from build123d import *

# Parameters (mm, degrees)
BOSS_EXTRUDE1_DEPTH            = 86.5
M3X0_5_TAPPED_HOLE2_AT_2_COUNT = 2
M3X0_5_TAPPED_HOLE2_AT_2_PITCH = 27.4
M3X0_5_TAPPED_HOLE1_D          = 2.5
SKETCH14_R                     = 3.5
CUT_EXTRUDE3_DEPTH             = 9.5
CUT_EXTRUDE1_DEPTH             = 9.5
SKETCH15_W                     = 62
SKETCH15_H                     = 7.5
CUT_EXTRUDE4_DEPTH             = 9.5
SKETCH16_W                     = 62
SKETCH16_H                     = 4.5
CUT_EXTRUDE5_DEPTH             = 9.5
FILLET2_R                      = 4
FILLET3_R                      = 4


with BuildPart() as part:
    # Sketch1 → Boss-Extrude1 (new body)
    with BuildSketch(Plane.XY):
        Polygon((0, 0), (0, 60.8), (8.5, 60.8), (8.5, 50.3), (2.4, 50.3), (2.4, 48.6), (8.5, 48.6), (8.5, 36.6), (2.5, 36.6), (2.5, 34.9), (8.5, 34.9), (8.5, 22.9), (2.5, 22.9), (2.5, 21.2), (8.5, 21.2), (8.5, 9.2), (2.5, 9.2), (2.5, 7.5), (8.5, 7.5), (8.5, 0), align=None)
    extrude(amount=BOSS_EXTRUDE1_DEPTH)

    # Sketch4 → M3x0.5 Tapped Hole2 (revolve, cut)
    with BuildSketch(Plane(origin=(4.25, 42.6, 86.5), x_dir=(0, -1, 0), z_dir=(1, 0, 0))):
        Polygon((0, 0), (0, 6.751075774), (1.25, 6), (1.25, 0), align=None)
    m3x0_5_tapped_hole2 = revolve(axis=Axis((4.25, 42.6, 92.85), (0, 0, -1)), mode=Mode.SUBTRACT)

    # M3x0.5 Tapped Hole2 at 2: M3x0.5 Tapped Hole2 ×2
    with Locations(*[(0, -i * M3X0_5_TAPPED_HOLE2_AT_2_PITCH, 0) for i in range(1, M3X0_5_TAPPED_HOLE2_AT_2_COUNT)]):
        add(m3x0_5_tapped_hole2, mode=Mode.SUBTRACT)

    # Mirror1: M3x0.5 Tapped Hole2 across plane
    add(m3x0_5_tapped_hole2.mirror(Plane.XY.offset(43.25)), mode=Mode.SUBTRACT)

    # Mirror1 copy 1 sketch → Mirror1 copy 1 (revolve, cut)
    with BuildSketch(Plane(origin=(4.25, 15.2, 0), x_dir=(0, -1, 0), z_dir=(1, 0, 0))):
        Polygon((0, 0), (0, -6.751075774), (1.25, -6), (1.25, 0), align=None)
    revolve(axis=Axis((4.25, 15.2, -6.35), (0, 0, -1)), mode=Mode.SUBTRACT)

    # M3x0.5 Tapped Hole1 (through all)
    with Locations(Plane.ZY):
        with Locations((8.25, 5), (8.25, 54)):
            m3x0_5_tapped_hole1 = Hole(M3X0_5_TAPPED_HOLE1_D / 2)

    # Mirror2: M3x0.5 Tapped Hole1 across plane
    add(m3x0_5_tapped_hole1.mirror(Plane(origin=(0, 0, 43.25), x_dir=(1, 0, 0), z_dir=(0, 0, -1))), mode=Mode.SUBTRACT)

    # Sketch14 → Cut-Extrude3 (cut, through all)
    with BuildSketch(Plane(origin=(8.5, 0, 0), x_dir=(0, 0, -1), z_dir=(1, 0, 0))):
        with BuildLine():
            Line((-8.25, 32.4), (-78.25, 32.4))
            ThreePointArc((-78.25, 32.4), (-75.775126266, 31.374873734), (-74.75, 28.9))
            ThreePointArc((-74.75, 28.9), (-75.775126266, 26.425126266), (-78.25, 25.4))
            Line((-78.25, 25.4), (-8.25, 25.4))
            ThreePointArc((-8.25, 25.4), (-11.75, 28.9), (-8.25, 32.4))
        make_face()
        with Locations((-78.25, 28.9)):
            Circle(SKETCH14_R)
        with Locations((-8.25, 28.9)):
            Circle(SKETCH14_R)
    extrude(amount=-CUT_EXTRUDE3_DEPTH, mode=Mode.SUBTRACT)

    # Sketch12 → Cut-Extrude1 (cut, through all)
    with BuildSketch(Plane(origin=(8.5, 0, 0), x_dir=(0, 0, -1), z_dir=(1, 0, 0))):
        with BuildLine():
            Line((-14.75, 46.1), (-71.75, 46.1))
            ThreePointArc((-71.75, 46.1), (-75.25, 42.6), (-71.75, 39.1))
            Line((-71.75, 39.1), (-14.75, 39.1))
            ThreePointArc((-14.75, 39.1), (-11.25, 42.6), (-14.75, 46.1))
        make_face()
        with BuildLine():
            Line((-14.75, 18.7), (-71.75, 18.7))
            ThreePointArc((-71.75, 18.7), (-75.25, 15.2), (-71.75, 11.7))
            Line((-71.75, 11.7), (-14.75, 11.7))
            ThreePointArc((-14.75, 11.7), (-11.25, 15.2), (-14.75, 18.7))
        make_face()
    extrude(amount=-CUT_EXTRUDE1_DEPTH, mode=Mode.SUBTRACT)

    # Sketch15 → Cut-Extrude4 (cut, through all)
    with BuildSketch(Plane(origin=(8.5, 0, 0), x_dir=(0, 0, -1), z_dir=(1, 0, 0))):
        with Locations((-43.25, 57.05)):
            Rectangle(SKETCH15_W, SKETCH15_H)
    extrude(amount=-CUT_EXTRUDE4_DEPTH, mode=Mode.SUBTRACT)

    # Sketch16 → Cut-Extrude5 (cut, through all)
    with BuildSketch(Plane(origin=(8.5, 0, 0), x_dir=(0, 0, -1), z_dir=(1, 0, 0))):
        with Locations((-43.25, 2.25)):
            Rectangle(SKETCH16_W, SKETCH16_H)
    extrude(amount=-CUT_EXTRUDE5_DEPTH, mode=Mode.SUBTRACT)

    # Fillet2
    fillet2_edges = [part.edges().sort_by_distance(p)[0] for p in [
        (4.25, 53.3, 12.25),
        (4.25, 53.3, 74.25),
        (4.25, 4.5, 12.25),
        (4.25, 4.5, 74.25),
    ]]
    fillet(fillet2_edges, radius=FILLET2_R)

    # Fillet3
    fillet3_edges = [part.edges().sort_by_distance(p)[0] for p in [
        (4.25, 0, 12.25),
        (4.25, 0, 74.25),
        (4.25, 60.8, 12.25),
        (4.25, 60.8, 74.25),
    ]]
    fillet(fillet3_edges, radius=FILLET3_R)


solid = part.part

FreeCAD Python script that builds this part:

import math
import FreeCAD as App
import Part
import Sketcher
from FreeCAD import Vector
Q = App.Units.Quantity


def edges_at(feature, points):
    """Names of the edges that pass closest to the given points."""
    edges = feature.Shape.Edges
    near = lambda p: min(range(len(edges)), key=lambda i: edges[i].distToShape(Part.Vertex(*p))[0])
    return sorted({f"Edge{near(p) + 1}" for p in points})

doc = App.newDocument("Part")
body = doc.addObject("PartDesign::Body", "Body")

# Sketch on XY plane
sketch1 = body.newObject("Sketcher::SketchObject", "Sketch")
sketch1.AttachmentSupport = (doc.getObject("XY_Plane"), [""])
sketch1.MapMode = "FlatFace"
sketch1.addGeometry(Part.LineSegment(Vector(0, 60.8, 0), Vector(0, 0, 0)), False)
sketch1.addGeometry(Part.LineSegment(Vector(0, 0, 0), Vector(8.5, 0, 0)), False)
sketch1.addGeometry(Part.LineSegment(Vector(8.5, 0, 0), Vector(8.5, 7.5, 0)), False)
sketch1.addGeometry(Part.LineSegment(Vector(8.5, 7.5, 0), Vector(2.5, 7.5, 0)), False)
sketch1.addGeometry(Part.LineSegment(Vector(2.5, 7.5, 0), Vector(2.5, 9.2, 0)), False)
sketch1.addGeometry(Part.LineSegment(Vector(2.5, 9.2, 0), Vector(8.5, 9.2, 0)), False)
sketch1.addGeometry(Part.LineSegment(Vector(8.5, 9.2, 0), Vector(8.5, 21.2, 0)), False)
sketch1.addGeometry(Part.LineSegment(Vector(8.5, 21.2, 0), Vector(2.5, 21.2, 0)), False)
sketch1.addGeometry(Part.LineSegment(Vector(2.5, 21.2, 0), Vector(2.5, 22.9, 0)), False)
sketch1.addGeometry(Part.LineSegment(Vector(2.5, 22.9, 0), Vector(8.5, 22.9, 0)), False)
sketch1.addGeometry(Part.LineSegment(Vector(8.5, 22.9, 0), Vector(8.5, 34.9, 0)), False)
sketch1.addGeometry(Part.LineSegment(Vector(8.5, 34.9, 0), Vector(2.5, 34.9, 0)), False)
sketch1.addGeometry(Part.LineSegment(Vector(2.5, 34.9, 0), Vector(2.5, 36.6, 0)), False)
sketch1.addGeometry(Part.LineSegment(Vector(2.5, 36.6, 0), Vector(8.5, 36.6, 0)), False)
sketch1.addGeometry(Part.LineSegment(Vector(8.5, 36.6, 0), Vector(8.5, 48.6, 0)), False)
sketch1.addGeometry(Part.LineSegment(Vector(8.5, 48.6, 0), Vector(2.4, 48.6, 0)), False)
sketch1.addGeometry(Part.LineSegment(Vector(2.4, 48.6, 0), Vector(2.4, 50.3, 0)), False)
sketch1.addGeometry(Part.LineSegment(Vector(2.4, 50.3, 0), Vector(8.5, 50.3, 0)), False)
sketch1.addGeometry(Part.LineSegment(Vector(8.5, 50.3, 0), Vector(8.5, 60.8, 0)), False)
sketch1.addGeometry(Part.LineSegment(Vector(8.5, 60.8, 0), Vector(0, 60.8, 0)), False)
sketch1.addConstraint(Sketcher.Constraint("Coincident", 0, 2, 1, 1))
sketch1.addConstraint(Sketcher.Constraint("Coincident", 1, 2, 2, 1))
sketch1.addConstraint(Sketcher.Constraint("Coincident", 2, 2, 3, 1))
sketch1.addConstraint(Sketcher.Constraint("Coincident", 3, 2, 4, 1))
sketch1.addConstraint(Sketcher.Constraint("Coincident", 4, 2, 5, 1))
sketch1.addConstraint(Sketcher.Constraint("Coincident", 5, 2, 6, 1))
sketch1.addConstraint(Sketcher.Constraint("Coincident", 6, 2, 7, 1))
sketch1.addConstraint(Sketcher.Constraint("Coincident", 7, 2, 8, 1))
sketch1.addConstraint(Sketcher.Constraint("Coincident", 8, 2, 9, 1))
sketch1.addConstraint(Sketcher.Constraint("Coincident", 9, 2, 10, 1))
sketch1.addConstraint(Sketcher.Constraint("Coincident", 10, 2, 11, 1))
sketch1.addConstraint(Sketcher.Constraint("Coincident", 11, 2, 12, 1))
sketch1.addConstraint(Sketcher.Constraint("Coincident", 12, 2, 13, 1))
sketch1.addConstraint(Sketcher.Constraint("Coincident", 13, 2, 14, 1))
sketch1.addConstraint(Sketcher.Constraint("Coincident", 14, 2, 15, 1))
sketch1.addConstraint(Sketcher.Constraint("Coincident", 15, 2, 16, 1))
sketch1.addConstraint(Sketcher.Constraint("Coincident", 16, 2, 17, 1))
sketch1.addConstraint(Sketcher.Constraint("Coincident", 17, 2, 18, 1))
sketch1.addConstraint(Sketcher.Constraint("Coincident", 18, 2, 19, 1))
sketch1.addConstraint(Sketcher.Constraint("Coincident", 19, 2, 0, 1))
sketch1.addConstraint(Sketcher.Constraint("Vertical", 0))
sketch1.addConstraint(Sketcher.Constraint("Horizontal", 1))
sketch1.addConstraint(Sketcher.Constraint("Vertical", 2))
sketch1.addConstraint(Sketcher.Constraint("Horizontal", 3))
sketch1.addConstraint(Sketcher.Constraint("Vertical", 4))
sketch1.addConstraint(Sketcher.Constraint("Horizontal", 5))
sketch1.addConstraint(Sketcher.Constraint("Vertical", 6))
sketch1.addConstraint(Sketcher.Constraint("Horizontal", 7))
sketch1.addConstraint(Sketcher.Constraint("Vertical", 8))
sketch1.addConstraint(Sketcher.Constraint("Horizontal", 9))
sketch1.addConstraint(Sketcher.Constraint("Vertical", 10))
sketch1.addConstraint(Sketcher.Constraint("Horizontal", 11))
sketch1.addConstraint(Sketcher.Constraint("Vertical", 12))
sketch1.addConstraint(Sketcher.Constraint("Horizontal", 13))
sketch1.addConstraint(Sketcher.Constraint("Vertical", 14))
sketch1.addConstraint(Sketcher.Constraint("Horizontal", 15))
sketch1.addConstraint(Sketcher.Constraint("Vertical", 16))
sketch1.addConstraint(Sketcher.Constraint("Horizontal", 17))
sketch1.addConstraint(Sketcher.Constraint("Vertical", 18))
sketch1.addConstraint(Sketcher.Constraint("Horizontal", 19))
sketch1.addConstraint(Sketcher.Constraint("Coincident", 0, 2, -1, 1))
sketch1.addConstraint(Sketcher.Constraint("Vertical", 2, 2, 5, 2))
sketch1.addConstraint(Sketcher.Constraint("Vertical", 4, 2, 7, 2))
sketch1.addConstraint(Sketcher.Constraint("Vertical", 6, 2, 9, 2))
sketch1.addConstraint(Sketcher.Constraint("Vertical", 8, 2, 11, 2))
sketch1.addConstraint(Sketcher.Constraint("Vertical", 10, 2, 13, 2))
sketch1.addConstraint(Sketcher.Constraint("Vertical", 14, 2, 17, 2))
sketch1.addConstraint(Sketcher.Constraint("Equal", 4, 8))
sketch1.addConstraint(Sketcher.Constraint("Equal", 6, 10))
sketch1.addConstraint(Sketcher.Constraint("Equal", 8, 12))
sketch1.addConstraint(Sketcher.Constraint("Equal", 10, 14))
sketch1.addConstraint(Sketcher.Constraint("Equal", 12, 16))
sketch1.addConstraint(Sketcher.Constraint("DistanceX", 3, 2, 3, 1, Q("6 mm")))
sketch1.addConstraint(Sketcher.Constraint("DistanceY", 6, 1, 6, 2, Q("12 mm")))
sketch1.addConstraint(Sketcher.Constraint("DistanceX", 1, 1, 1, 2, Q("8.5 mm")))
sketch1.addConstraint(Sketcher.Constraint("DistanceX", 15, 2, 15, 1, Q("6.1 mm")))
sketch1.addConstraint(Sketcher.Constraint("DistanceY", 0, 2, 0, 1, Q("60.8 mm")))
sketch1.addConstraint(Sketcher.Constraint("DistanceY", 2, 1, 2, 2, Q("7.5 mm")))
sketch1.addConstraint(Sketcher.Constraint("DistanceY", 4, 1, 4, 2, Q("1.7 mm")))
pad1 = body.newObject("PartDesign::Pad", "Pad")
pad1.Profile = sketch1
pad1.Length = 86.5

# Sketch on YZ plane
sketch2 = body.newObject("Sketcher::SketchObject", "Sketch001")
sketch2.AttachmentSupport = (doc.getObject("YZ_Plane"), [""])
sketch2.MapMode = "FlatFace"
sketch2.AttachmentOffset = App.Placement(Vector(0, 0, 4.25), App.Rotation())
sketch2.addGeometry(Part.LineSegment(Vector(42.6, 79.748924, 0), Vector(42.6, 86.5, 0)), False)
sketch2.addGeometry(Part.LineSegment(Vector(42.6, 86.5, 0), Vector(41.35, 86.5, 0)), False)
sketch2.addGeometry(Part.LineSegment(Vector(41.35, 86.5, 0), Vector(41.35, 80.5, 0)), False)
sketch2.addGeometry(Part.LineSegment(Vector(41.35, 80.5, 0), Vector(42.6, 79.748924, 0)), False)
sketch2.addGeometry(Part.LineSegment(Vector(42.6, 86.5, 0), Vector(42.6, 79.748924, 0)), True)  # axis
sketch2.addConstraint(Sketcher.Constraint("Coincident", 0, 2, 1, 1))
sketch2.addConstraint(Sketcher.Constraint("Coincident", 1, 2, 2, 1))
sketch2.addConstraint(Sketcher.Constraint("Coincident", 2, 2, 3, 1))
sketch2.addConstraint(Sketcher.Constraint("Coincident", 3, 2, 0, 1))
sketch2.addConstraint(Sketcher.Constraint("Vertical", 0))
sketch2.addConstraint(Sketcher.Constraint("Horizontal", 1))
sketch2.addConstraint(Sketcher.Constraint("Vertical", 2))
sketch2.addConstraint(Sketcher.Constraint("Vertical", 4))
sketch2.addConstraint(Sketcher.Constraint("Coincident", 4, 1, 0, 2))
sketch2.addConstraint(Sketcher.Constraint("Equal", 0, 4))
sketch2.addConstraint(Sketcher.Constraint("DistanceY", 2, 2, 2, 1, Q("6 mm")))
sketch2.addConstraint(Sketcher.Constraint("Angle", 3, Q("-31 deg")))
sketch2.addConstraint(Sketcher.Constraint("DistanceX", 1, 2, 1, 1, Q("1.25 mm")))
sketch2.addConstraint(Sketcher.Constraint("DistanceX", -1, 1, 0, 2, Q("42.6 mm")))
sketch2.addConstraint(Sketcher.Constraint("DistanceY", -1, 1, 0, 2, Q("86.5 mm")))
groove = body.newObject("PartDesign::Groove", "Groove")
groove.Profile = sketch2
groove.ReferenceAxis = (sketch2, ["Axis0"])
groove.Angle = 360
doc.recompute()

linearpattern = body.newObject("PartDesign::LinearPattern", "LinearPattern")
linearpattern.Originals = [groove]
linearpattern.Direction = (doc.getObject("Y_Axis"), [""])
linearpattern.Mode = "offset"
linearpattern.Offset = 27.4
linearpattern.Occurrences = 2
linearpattern.Reversed = True
body.Tip = linearpattern
doc.recompute()

datumplane = body.newObject("PartDesign::Plane", "DatumPlane")
datumplane.AttachmentSupport = (doc.getObject("XY_Plane"), [""])
datumplane.MapMode = "FlatFace"
datumplane.AttachmentOffset = App.Placement(Vector(0, 0, 43.25), App.Rotation())
mirrored = body.newObject("PartDesign::Mirrored", "Mirrored")
mirrored.Originals = [groove]
mirrored.MirrorPlane = (datumplane, [""])
body.Tip = mirrored

# Sketch on YZ plane
sketch3 = body.newObject("Sketcher::SketchObject", "Sketch002")
sketch3.AttachmentSupport = (doc.getObject("YZ_Plane"), [""])
sketch3.MapMode = "FlatFace"
sketch3.AttachmentOffset = App.Placement(Vector(0, 0, 4.25), App.Rotation())
sketch3.addGeometry(Part.LineSegment(Vector(15.2, 0, 0), Vector(15.2, 6.751076, 0)), False)
sketch3.addGeometry(Part.LineSegment(Vector(15.2, 6.751076, 0), Vector(13.95, 6, 0)), False)
sketch3.addGeometry(Part.LineSegment(Vector(13.95, 6, 0), Vector(13.95, 0, 0)), False)
sketch3.addGeometry(Part.LineSegment(Vector(13.95, 0, 0), Vector(15.2, 0, 0)), False)
sketch3.addGeometry(Part.LineSegment(Vector(15.2, 6.751076, 0), Vector(15.2, 0, 0)), True)  # axis
sketch3.addConstraint(Sketcher.Constraint("Coincident", 0, 2, 1, 1))
sketch3.addConstraint(Sketcher.Constraint("Coincident", 1, 2, 2, 1))
sketch3.addConstraint(Sketcher.Constraint("Coincident", 2, 2, 3, 1))
sketch3.addConstraint(Sketcher.Constraint("Coincident", 3, 2, 0, 1))
sketch3.addConstraint(Sketcher.Constraint("Vertical", 0))
sketch3.addConstraint(Sketcher.Constraint("Vertical", 2))
sketch3.addConstraint(Sketcher.Constraint("Horizontal", 3))
sketch3.addConstraint(Sketcher.Constraint("Vertical", 4))
sketch3.addConstraint(Sketcher.Constraint("Coincident", 4, 1, 0, 2))
sketch3.addConstraint(Sketcher.Constraint("PointOnObject", 2, 2, -1))
sketch3.addConstraint(Sketcher.Constraint("PointOnObject", 4, 2, -1))
sketch3.addConstraint(Sketcher.Constraint("DistanceY", 2, 2, 2, 1, Q("6 mm")))
sketch3.addConstraint(Sketcher.Constraint("Angle", 1, Q("-149 deg")))
sketch3.addConstraint(Sketcher.Constraint("DistanceX", 3, 1, 3, 2, Q("1.25 mm")))
sketch3.addConstraint(Sketcher.Constraint("DistanceX", -1, 1, 0, 2, Q("15.2 mm")))
groove2 = body.newObject("PartDesign::Groove", "Groove001")
groove2.Profile = sketch3
groove2.ReferenceAxis = (sketch3, ["Axis0"])
groove2.Angle = 360

# Sketch on YZ plane
sketch4 = body.newObject("Sketcher::SketchObject", "Sketch003")
sketch4.AttachmentSupport = (doc.getObject("YZ_Plane"), [""])
sketch4.MapMode = "FlatFace"
sketch4.addGeometry(Part.Circle(Vector(5, 8.25, 0), Vector(0, 0, 1), 1.25), False)
sketch4.addGeometry(Part.Circle(Vector(54, 8.25, 0), Vector(0, 0, 1), 1.25), False)
sketch4.addConstraint(Sketcher.Constraint("Equal", 0, 1))
sketch4.addConstraint(Sketcher.Constraint("Horizontal", 0, 3, 1, 3))
sketch4.addConstraint(Sketcher.Constraint("Diameter", 0, Q("2.5 mm")))
sketch4.addConstraint(Sketcher.Constraint("DistanceX", -1, 1, 0, 3, Q("5 mm")))
sketch4.addConstraint(Sketcher.Constraint("DistanceX", -1, 1, 1, 3, Q("54 mm")))
sketch4.addConstraint(Sketcher.Constraint("DistanceY", -1, 1, 0, 3, Q("8.25 mm")))
doc.recompute()
hole = body.newObject("PartDesign::Hole", "Hole")
hole.Profile = sketch4
hole.ThreadType = "None"
hole.Diameter = 2.5
hole.DepthType = "ThroughAll"
hole.Reversed = True
doc.recompute()

datumplane2 = body.newObject("PartDesign::Plane", "DatumPlane001")
datumplane2.AttachmentSupport = (doc.getObject("XY_Plane"), [""])
datumplane2.MapMode = "FlatFace"
datumplane2.AttachmentOffset = App.Placement(Vector(0, 0, 43.25), App.Rotation())
mirrored2 = body.newObject("PartDesign::Mirrored", "Mirrored001")
mirrored2.Originals = [hole]
mirrored2.MirrorPlane = (datumplane2, [""])
body.Tip = mirrored2

# Sketch on YZ plane
sketch5 = body.newObject("Sketcher::SketchObject", "Sketch004")
sketch5.AttachmentSupport = (doc.getObject("YZ_Plane"), [""])
sketch5.MapMode = "FlatFace"
sketch5.AttachmentOffset = App.Placement(Vector(0, 0, 8.5), App.Rotation())
sketch5.addGeometry(Part.LineSegment(Vector(32.4, 8.25, 0), Vector(32.4, 78.25, 0)), False)
sketch5.addGeometry(Part.ArcOfCircle(Part.Circle(Vector(28.9, 78.25, 0), Vector(0, 0, 1), 3.5), math.radians(0), math.radians(180)), False)
sketch5.addGeometry(Part.LineSegment(Vector(25.4, 78.25, 0), Vector(25.4, 8.25, 0)), False)
sketch5.addGeometry(Part.ArcOfCircle(Part.Circle(Vector(28.9, 8.25, 0), Vector(0, 0, 1), 3.5), math.radians(180), math.radians(360)), False)
sketch5.addConstraint(Sketcher.Constraint("Tangent", 0, 2, 1, 1))
sketch5.addConstraint(Sketcher.Constraint("Tangent", 1, 2, 2, 1))
sketch5.addConstraint(Sketcher.Constraint("Tangent", 2, 2, 3, 1))
sketch5.addConstraint(Sketcher.Constraint("Tangent", 3, 2, 0, 1))
sketch5.addConstraint(Sketcher.Constraint("Vertical", 0))
sketch5.addConstraint(Sketcher.Constraint("Vertical", 2))
sketch5.addConstraint(Sketcher.Constraint("Radius", 1, Q("3.5 mm")))
sketch5.addConstraint(Sketcher.Constraint("DistanceY", 0, 1, 0, 2, Q("70 mm")))
sketch5.addConstraint(Sketcher.Constraint("DistanceX", -1, 1, 1, 3, Q("28.9 mm")))
sketch5.addConstraint(Sketcher.Constraint("DistanceY", -1, 1, 1, 3, Q("78.25 mm")))
pocket1 = body.newObject("PartDesign::Pocket", "Pocket")
pocket1.Profile = sketch5
pocket1.Type = "ThroughAll"

# Sketch on YZ plane
sketch6 = body.newObject("Sketcher::SketchObject", "Sketch005")
sketch6.AttachmentSupport = (doc.getObject("YZ_Plane"), [""])
sketch6.MapMode = "FlatFace"
sketch6.AttachmentOffset = App.Placement(Vector(0, 0, 8.5), App.Rotation())
sketch6.addGeometry(Part.LineSegment(Vector(46.1, 14.75, 0), Vector(46.1, 71.75, 0)), False)
sketch6.addGeometry(Part.ArcOfCircle(Part.Circle(Vector(42.6, 71.75, 0), Vector(0, 0, 1), 3.5), math.radians(0), math.radians(180)), False)
sketch6.addGeometry(Part.LineSegment(Vector(39.1, 71.75, 0), Vector(39.1, 14.75, 0)), False)
sketch6.addGeometry(Part.ArcOfCircle(Part.Circle(Vector(42.6, 14.75, 0), Vector(0, 0, 1), 3.5), math.radians(180), math.radians(360)), False)
sketch6.addGeometry(Part.LineSegment(Vector(18.7, 14.75, 0), Vector(18.7, 71.75, 0)), False)
sketch6.addGeometry(Part.ArcOfCircle(Part.Circle(Vector(15.2, 71.75, 0), Vector(0, 0, 1), 3.5), math.radians(0), math.radians(180)), False)
sketch6.addGeometry(Part.LineSegment(Vector(11.7, 71.75, 0), Vector(11.7, 14.75, 0)), False)
sketch6.addGeometry(Part.ArcOfCircle(Part.Circle(Vector(15.2, 14.75, 0), Vector(0, 0, 1), 3.5), math.radians(180), math.radians(360)), False)
sketch6.addConstraint(Sketcher.Constraint("Tangent", 0, 2, 1, 1))
sketch6.addConstraint(Sketcher.Constraint("Tangent", 1, 2, 2, 1))
sketch6.addConstraint(Sketcher.Constraint("Tangent", 2, 2, 3, 1))
sketch6.addConstraint(Sketcher.Constraint("Tangent", 3, 2, 0, 1))
sketch6.addConstraint(Sketcher.Constraint("Tangent", 4, 2, 5, 1))
sketch6.addConstraint(Sketcher.Constraint("Tangent", 5, 2, 6, 1))
sketch6.addConstraint(Sketcher.Constraint("Tangent", 6, 2, 7, 1))
sketch6.addConstraint(Sketcher.Constraint("Tangent", 7, 2, 4, 1))
sketch6.addConstraint(Sketcher.Constraint("Vertical", 0))
sketch6.addConstraint(Sketcher.Constraint("Vertical", 2))
sketch6.addConstraint(Sketcher.Constraint("Vertical", 4))
sketch6.addConstraint(Sketcher.Constraint("Vertical", 6))
sketch6.addConstraint(Sketcher.Constraint("Equal", 3, 5))
sketch6.addConstraint(Sketcher.Constraint("Horizontal", 1, 3, 5, 3))
sketch6.addConstraint(Sketcher.Constraint("Horizontal", 3, 3, 7, 3))
sketch6.addConstraint(Sketcher.Constraint("Radius", 1, Q("3.5 mm")))
sketch6.addConstraint(Sketcher.Constraint("DistanceY", 0, 1, 0, 2, Q("57 mm")))
sketch6.addConstraint(Sketcher.Constraint("DistanceX", -1, 1, 1, 3, Q("42.6 mm")))
sketch6.addConstraint(Sketcher.Constraint("DistanceX", -1, 1, 5, 3, Q("15.2 mm")))
sketch6.addConstraint(Sketcher.Constraint("DistanceY", -1, 1, 1, 3, Q("71.75 mm")))
pocket2 = body.newObject("PartDesign::Pocket", "Pocket001")
pocket2.Profile = sketch6
pocket2.Type = "ThroughAll"

# Sketch on YZ plane
sketch7 = body.newObject("Sketcher::SketchObject", "Sketch006")
sketch7.AttachmentSupport = (doc.getObject("YZ_Plane"), [""])
sketch7.MapMode = "FlatFace"
sketch7.AttachmentOffset = App.Placement(Vector(0, 0, 8.5), App.Rotation())
sketch7.addGeometry(Part.LineSegment(Vector(60.8, 74.25, 0), Vector(53.3, 74.25, 0)), False)
sketch7.addGeometry(Part.LineSegment(Vector(53.3, 74.25, 0), Vector(53.3, 12.25, 0)), False)
sketch7.addGeometry(Part.LineSegment(Vector(53.3, 12.25, 0), Vector(60.8, 12.25, 0)), False)
sketch7.addGeometry(Part.LineSegment(Vector(60.8, 12.25, 0), Vector(60.8, 74.25, 0)), False)
sketch7.addConstraint(Sketcher.Constraint("Coincident", 0, 2, 1, 1))
sketch7.addConstraint(Sketcher.Constraint("Coincident", 1, 2, 2, 1))
sketch7.addConstraint(Sketcher.Constraint("Coincident", 2, 2, 3, 1))
sketch7.addConstraint(Sketcher.Constraint("Coincident", 3, 2, 0, 1))
sketch7.addConstraint(Sketcher.Constraint("Horizontal", 0))
sketch7.addConstraint(Sketcher.Constraint("Vertical", 1))
sketch7.addConstraint(Sketcher.Constraint("Horizontal", 2))
sketch7.addConstraint(Sketcher.Constraint("Vertical", 3))
sketch7.addConstraint(Sketcher.Constraint("DistanceY", 1, 2, 1, 1, Q("62 mm")))
sketch7.addConstraint(Sketcher.Constraint("DistanceX", 0, 2, 0, 1, Q("7.5 mm")))
sketch7.addConstraint(Sketcher.Constraint("DistanceX", -1, 1, 0, 2, Q("53.3 mm")))
sketch7.addConstraint(Sketcher.Constraint("DistanceY", -1, 1, 0, 2, Q("74.25 mm")))
pocket3 = body.newObject("PartDesign::Pocket", "Pocket002")
pocket3.Profile = sketch7
pocket3.Type = "ThroughAll"

# Sketch on YZ plane
sketch8 = body.newObject("Sketcher::SketchObject", "Sketch007")
sketch8.AttachmentSupport = (doc.getObject("YZ_Plane"), [""])
sketch8.MapMode = "FlatFace"
sketch8.AttachmentOffset = App.Placement(Vector(0, 0, 8.5), App.Rotation())
sketch8.addGeometry(Part.LineSegment(Vector(4.5, 74.25, 0), Vector(0, 74.25, 0)), False)
sketch8.addGeometry(Part.LineSegment(Vector(0, 74.25, 0), Vector(0, 12.25, 0)), False)
sketch8.addGeometry(Part.LineSegment(Vector(0, 12.25, 0), Vector(4.5, 12.25, 0)), False)
sketch8.addGeometry(Part.LineSegment(Vector(4.5, 12.25, 0), Vector(4.5, 74.25, 0)), False)
sketch8.addConstraint(Sketcher.Constraint("Coincident", 0, 2, 1, 1))
sketch8.addConstraint(Sketcher.Constraint("Coincident", 1, 2, 2, 1))
sketch8.addConstraint(Sketcher.Constraint("Coincident", 2, 2, 3, 1))
sketch8.addConstraint(Sketcher.Constraint("Coincident", 3, 2, 0, 1))
sketch8.addConstraint(Sketcher.Constraint("Horizontal", 0))
sketch8.addConstraint(Sketcher.Constraint("Vertical", 1))
sketch8.addConstraint(Sketcher.Constraint("Horizontal", 2))
sketch8.addConstraint(Sketcher.Constraint("Vertical", 3))
sketch8.addConstraint(Sketcher.Constraint("PointOnObject", 0, 2, -2))
sketch8.addConstraint(Sketcher.Constraint("DistanceY", 1, 2, 1, 1, Q("62 mm")))
sketch8.addConstraint(Sketcher.Constraint("DistanceX", 0, 2, 0, 1, Q("4.5 mm")))
sketch8.addConstraint(Sketcher.Constraint("DistanceY", -1, 1, 0, 2, Q("74.25 mm")))
pocket4 = body.newObject("PartDesign::Pocket", "Pocket003")
pocket4.Profile = sketch8
pocket4.Type = "ThroughAll"
doc.recompute()

fillet = body.newObject("PartDesign::Fillet", "Fillet")
fillet.Base = (pocket4, edges_at(pocket4, [
    (4.25, 53.3, 12.25),
    (4.25, 53.3, 74.25),
    (4.25, 4.5, 12.25),
    (4.25, 4.5, 74.25),
]))
fillet.Radius = 4
doc.recompute()

fillet2 = body.newObject("PartDesign::Fillet", "Fillet001")
fillet2.Base = (fillet, edges_at(fillet, [
    (4.25, 0, 12.25),
    (4.25, 0, 74.25),
    (4.25, 60.8, 12.25),
    (4.25, 60.8, 74.25),
]))
fillet2.Radius = 4

doc.recompute()
